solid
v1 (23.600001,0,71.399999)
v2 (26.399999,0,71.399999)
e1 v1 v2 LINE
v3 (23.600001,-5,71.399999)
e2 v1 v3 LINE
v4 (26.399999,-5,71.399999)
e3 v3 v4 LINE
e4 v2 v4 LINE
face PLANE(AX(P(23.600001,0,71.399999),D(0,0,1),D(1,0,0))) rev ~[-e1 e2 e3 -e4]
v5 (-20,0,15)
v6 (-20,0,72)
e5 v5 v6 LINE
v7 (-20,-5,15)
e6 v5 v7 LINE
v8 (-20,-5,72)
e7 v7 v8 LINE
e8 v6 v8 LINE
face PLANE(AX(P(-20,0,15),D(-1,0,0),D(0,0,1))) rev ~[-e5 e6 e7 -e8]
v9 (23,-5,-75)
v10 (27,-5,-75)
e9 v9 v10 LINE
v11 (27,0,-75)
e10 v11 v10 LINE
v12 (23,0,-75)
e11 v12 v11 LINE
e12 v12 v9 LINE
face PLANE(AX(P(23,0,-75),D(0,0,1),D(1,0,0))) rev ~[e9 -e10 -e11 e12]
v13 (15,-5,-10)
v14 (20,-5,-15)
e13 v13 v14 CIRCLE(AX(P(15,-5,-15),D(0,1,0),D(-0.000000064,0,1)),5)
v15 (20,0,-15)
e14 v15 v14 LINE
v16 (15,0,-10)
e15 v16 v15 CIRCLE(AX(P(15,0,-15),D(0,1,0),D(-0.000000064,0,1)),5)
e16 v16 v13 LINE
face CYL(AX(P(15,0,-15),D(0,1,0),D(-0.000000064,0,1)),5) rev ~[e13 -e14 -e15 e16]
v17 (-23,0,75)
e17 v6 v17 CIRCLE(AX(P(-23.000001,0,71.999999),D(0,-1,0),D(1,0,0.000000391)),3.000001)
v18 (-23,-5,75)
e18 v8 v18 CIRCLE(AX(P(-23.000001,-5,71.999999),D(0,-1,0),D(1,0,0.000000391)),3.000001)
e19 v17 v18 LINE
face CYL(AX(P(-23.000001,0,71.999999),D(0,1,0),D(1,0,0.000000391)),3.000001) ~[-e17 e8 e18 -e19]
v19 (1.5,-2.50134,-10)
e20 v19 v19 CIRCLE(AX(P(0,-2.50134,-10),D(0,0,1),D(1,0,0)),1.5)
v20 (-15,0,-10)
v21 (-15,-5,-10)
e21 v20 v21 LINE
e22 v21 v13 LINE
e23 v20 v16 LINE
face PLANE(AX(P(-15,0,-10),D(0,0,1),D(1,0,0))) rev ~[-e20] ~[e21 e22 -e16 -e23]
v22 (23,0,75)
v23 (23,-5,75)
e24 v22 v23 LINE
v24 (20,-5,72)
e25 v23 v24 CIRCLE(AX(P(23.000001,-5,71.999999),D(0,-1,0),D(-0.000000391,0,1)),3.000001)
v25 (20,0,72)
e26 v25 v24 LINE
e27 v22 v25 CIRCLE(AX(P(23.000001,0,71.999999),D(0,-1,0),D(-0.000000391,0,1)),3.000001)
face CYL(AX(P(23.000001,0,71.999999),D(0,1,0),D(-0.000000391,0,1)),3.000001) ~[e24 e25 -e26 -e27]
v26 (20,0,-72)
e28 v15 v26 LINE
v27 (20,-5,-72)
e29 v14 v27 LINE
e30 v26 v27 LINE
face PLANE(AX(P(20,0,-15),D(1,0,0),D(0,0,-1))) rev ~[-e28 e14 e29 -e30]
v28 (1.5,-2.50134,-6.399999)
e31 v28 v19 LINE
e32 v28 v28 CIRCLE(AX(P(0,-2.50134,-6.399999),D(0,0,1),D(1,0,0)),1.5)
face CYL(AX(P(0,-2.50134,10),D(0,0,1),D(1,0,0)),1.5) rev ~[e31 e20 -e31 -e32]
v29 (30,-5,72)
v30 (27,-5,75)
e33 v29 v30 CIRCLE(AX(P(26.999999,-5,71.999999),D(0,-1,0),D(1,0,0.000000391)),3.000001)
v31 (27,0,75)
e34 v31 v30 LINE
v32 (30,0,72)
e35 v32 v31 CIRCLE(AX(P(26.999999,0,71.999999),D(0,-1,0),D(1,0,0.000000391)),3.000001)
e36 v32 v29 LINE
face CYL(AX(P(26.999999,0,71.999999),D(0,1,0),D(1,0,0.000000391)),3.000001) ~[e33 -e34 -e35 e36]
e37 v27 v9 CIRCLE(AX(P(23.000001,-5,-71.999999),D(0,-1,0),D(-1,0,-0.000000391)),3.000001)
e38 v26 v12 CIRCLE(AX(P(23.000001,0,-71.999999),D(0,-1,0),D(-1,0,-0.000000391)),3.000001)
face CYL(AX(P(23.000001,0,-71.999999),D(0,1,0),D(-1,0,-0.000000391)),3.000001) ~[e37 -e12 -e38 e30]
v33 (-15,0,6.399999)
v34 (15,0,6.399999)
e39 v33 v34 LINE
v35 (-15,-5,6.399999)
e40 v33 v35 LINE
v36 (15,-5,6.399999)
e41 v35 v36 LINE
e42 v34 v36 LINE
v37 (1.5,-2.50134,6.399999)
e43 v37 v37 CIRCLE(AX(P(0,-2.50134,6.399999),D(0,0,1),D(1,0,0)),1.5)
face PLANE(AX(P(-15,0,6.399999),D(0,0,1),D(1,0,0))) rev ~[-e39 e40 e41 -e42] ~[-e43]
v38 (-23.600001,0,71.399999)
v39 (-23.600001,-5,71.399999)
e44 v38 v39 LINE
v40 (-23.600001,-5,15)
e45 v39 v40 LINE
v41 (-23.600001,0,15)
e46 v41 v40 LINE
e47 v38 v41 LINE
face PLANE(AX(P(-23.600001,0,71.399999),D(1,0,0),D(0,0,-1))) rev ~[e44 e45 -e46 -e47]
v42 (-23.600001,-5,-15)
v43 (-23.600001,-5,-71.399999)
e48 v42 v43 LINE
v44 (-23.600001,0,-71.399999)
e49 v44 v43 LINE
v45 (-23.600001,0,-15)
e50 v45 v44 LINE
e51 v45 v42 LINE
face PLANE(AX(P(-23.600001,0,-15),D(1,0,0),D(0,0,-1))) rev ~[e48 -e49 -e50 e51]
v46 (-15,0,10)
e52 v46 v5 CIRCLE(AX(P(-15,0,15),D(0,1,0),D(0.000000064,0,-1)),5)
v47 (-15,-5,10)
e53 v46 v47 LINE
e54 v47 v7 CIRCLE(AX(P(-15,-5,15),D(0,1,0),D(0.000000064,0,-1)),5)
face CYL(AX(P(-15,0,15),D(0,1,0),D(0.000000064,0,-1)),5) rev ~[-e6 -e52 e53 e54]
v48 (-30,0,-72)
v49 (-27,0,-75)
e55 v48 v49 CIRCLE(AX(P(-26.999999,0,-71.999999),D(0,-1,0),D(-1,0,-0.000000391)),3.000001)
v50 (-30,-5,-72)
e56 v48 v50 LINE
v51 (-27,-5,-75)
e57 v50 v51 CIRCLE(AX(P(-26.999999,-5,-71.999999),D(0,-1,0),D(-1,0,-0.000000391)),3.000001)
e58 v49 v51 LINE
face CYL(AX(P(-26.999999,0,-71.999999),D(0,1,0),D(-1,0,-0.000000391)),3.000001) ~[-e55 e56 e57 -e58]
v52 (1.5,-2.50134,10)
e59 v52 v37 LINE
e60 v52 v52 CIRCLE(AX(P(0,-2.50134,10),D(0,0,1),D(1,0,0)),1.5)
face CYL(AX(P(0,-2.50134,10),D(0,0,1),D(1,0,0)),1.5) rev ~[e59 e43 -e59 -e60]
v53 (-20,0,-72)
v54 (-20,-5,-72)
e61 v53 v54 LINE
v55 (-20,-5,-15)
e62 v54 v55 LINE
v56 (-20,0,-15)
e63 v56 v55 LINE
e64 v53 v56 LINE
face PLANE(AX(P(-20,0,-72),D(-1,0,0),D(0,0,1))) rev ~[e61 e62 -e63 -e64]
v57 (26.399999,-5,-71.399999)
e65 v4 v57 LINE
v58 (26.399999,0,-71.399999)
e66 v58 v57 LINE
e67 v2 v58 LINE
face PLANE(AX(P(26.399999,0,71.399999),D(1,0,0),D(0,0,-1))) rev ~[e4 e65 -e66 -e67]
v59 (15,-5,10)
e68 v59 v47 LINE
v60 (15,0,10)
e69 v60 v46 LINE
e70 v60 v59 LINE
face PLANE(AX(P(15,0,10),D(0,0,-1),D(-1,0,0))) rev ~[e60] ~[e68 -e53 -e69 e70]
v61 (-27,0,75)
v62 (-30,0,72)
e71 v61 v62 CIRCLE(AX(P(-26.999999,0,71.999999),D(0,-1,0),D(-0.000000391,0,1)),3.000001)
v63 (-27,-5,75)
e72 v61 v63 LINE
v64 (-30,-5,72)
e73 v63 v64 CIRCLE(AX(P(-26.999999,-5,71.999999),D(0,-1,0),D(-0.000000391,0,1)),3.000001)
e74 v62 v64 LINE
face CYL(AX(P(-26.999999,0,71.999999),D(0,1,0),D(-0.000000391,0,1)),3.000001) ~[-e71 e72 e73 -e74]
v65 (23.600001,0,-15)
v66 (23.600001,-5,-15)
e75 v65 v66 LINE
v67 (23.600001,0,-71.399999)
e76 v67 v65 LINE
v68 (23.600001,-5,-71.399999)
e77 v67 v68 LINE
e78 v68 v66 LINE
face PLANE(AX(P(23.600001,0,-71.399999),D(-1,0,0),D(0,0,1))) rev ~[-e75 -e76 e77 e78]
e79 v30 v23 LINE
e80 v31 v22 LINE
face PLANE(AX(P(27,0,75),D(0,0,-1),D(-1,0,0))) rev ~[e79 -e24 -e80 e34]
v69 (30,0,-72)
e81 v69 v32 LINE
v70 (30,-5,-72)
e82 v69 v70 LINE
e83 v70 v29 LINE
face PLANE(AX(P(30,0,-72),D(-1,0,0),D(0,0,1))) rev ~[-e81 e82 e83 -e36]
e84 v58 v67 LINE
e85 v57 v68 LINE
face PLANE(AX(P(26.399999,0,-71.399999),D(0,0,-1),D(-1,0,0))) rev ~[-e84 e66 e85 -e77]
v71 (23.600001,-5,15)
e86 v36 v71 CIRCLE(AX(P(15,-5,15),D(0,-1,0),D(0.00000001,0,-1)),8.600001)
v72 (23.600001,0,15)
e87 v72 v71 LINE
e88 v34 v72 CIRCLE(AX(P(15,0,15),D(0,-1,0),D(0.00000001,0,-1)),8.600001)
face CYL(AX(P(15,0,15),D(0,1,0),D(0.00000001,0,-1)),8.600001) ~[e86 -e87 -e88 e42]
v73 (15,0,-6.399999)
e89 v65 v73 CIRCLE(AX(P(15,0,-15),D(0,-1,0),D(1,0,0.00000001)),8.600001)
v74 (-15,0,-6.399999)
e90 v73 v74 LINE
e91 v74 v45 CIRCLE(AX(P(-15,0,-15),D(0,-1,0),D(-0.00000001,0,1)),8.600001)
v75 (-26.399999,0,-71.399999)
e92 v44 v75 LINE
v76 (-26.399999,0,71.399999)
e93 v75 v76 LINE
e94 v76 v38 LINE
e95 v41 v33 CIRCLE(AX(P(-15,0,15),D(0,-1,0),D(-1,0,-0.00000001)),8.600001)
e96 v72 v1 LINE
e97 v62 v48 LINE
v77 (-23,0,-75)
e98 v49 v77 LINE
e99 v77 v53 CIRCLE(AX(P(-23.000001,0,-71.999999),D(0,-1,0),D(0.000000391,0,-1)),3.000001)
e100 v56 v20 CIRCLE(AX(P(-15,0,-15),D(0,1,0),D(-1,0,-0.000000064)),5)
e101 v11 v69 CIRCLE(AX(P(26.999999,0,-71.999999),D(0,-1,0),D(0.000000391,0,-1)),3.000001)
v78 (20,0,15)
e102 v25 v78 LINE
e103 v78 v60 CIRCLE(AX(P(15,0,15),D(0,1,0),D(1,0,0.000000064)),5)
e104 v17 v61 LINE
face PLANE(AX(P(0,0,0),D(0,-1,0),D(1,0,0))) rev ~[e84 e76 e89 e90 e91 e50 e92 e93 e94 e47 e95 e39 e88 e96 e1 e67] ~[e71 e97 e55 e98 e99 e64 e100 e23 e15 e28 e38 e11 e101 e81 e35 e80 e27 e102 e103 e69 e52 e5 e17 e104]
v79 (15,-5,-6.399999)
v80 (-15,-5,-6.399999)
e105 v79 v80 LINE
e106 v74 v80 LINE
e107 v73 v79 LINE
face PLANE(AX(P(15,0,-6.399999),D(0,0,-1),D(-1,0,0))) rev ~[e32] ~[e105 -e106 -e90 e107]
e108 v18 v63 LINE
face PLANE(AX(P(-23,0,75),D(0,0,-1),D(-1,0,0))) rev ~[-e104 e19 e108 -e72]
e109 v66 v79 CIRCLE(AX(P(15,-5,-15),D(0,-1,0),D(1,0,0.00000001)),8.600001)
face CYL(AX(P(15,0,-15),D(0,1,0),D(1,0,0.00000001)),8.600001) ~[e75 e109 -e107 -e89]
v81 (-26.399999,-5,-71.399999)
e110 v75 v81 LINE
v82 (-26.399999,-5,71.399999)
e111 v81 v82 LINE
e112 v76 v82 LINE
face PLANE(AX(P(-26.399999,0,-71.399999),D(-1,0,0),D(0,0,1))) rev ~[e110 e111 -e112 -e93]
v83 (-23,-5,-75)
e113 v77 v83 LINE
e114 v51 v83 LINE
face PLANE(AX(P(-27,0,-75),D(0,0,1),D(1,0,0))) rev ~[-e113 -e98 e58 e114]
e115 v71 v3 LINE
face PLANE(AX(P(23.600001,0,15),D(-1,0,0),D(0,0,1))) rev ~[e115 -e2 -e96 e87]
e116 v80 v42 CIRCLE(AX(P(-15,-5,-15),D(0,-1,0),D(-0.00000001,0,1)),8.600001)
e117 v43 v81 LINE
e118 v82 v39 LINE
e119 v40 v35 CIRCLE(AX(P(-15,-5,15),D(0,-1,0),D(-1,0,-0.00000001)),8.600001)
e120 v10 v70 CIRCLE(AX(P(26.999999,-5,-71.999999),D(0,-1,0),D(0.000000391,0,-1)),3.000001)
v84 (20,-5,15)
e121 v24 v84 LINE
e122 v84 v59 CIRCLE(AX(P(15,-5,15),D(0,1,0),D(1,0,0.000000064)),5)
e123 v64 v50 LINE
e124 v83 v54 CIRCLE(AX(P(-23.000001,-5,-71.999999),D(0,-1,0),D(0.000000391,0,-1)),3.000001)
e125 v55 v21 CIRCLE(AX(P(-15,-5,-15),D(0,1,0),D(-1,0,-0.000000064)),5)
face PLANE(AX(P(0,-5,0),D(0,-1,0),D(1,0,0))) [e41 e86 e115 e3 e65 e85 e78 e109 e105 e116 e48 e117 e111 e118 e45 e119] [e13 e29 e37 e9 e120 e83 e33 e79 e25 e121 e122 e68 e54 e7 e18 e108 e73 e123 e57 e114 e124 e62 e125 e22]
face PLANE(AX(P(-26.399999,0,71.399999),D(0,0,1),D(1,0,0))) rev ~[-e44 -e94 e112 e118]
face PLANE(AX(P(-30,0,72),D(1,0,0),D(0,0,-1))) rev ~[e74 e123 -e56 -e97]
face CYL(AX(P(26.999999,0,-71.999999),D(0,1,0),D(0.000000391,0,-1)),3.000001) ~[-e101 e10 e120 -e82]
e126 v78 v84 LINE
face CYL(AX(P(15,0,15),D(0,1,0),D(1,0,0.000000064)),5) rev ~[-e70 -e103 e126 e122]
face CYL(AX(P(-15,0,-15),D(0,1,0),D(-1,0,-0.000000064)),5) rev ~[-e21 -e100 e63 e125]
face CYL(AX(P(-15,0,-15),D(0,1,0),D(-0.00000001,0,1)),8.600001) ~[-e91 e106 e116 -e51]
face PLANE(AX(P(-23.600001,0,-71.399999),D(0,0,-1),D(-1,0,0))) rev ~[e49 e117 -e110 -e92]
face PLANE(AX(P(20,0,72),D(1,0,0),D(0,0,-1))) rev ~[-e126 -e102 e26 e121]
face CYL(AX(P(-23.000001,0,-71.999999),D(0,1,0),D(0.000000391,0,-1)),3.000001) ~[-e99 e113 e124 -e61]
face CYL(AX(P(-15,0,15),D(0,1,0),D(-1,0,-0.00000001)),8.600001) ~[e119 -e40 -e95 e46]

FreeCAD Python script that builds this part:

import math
import FreeCAD as App
import Part
import Sketcher
from FreeCAD import Vector
Q = App.Units.Quantity

doc = App.newDocument("Part")
body = doc.addObject("PartDesign::Body", "Body")

# Sketch on XZ plane
sketch1 = body.newObject("Sketcher::SketchObject", "Sketch")
sketch1.AttachmentSupport = (doc.getObject("XZ_Plane"), [""])
sketch1.MapMode = "FlatFace"
sketch1.addGeometry(Part.LineSegment(Vector(-23, 75, 0), Vector(-27, 75, 0)), False)
sketch1.addGeometry(Part.ArcOfCircle(Part.Circle(Vector(-26.999999, 71.999999, 0), Vector(0, 0, 1), 3.000001), math.radians(90.000022), math.radians(179.999978)), False)
sketch1.addGeometry(Part.LineSegment(Vector(-30, 72, 0), Vector(-30, -72, 0)), False)
sketch1.addGeometry(Part.ArcOfCircle(Part.Circle(Vector(-26.999999, -71.999999, 0), Vector(0, 0, 1), 3.000001), math.radians(-179.999978), math.radians(-90.000022)), False)
sketch1.addGeometry(Part.LineSegment(Vector(-27, -75, 0), Vector(-23, -75, 0)), False)
sketch1.addGeometry(Part.ArcOfCircle(Part.Circle(Vector(-23.000001, -71.999999, 0), Vector(0, 0, 1), 3.000001), math.radians(-89.999978), math.radians(-0.000022)), False)
sketch1.addGeometry(Part.LineSegment(Vector(-20, -72, 0), Vector(-20, -15, 0)), False)
sketch1.addGeometry(Part.ArcOfCircle(Part.Circle(Vector(-15, -15, 0), Vector(0, 0, 1), 5), math.radians(89.999996), math.radians(180.000004)), False)
sketch1.addGeometry(Part.LineSegment(Vector(-15, -10, 0), Vector(15, -10, 0)), False)
sketch1.addGeometry(Part.ArcOfCircle(Part.Circle(Vector(15, -15, 0), Vector(0, 0, 1), 5), math.radians(-0.000004), math.radians(90.000004)), False)
sketch1.addGeometry(Part.LineSegment(Vector(20, -15, 0), Vector(20, -72, 0)), False)
sketch1.addGeometry(Part.ArcOfCircle(Part.Circle(Vector(23.000001, -71.999999, 0), Vector(0, 0, 1), 3.000001), math.radians(-179.999978), math.radians(-90.000022)), False)
sketch1.addGeometry(Part.LineSegment(Vector(23, -75, 0), Vector(27, -75, 0)), False)
sketch1.addGeometry(Part.ArcOfCircle(Part.Circle(Vector(26.999999, -71.999999, 0), Vector(0, 0, 1), 3.000001), math.radians(-89.999978), math.radians(-0.000022)), False)
sketch1.addGeometry(Part.LineSegment(Vector(30, -72, 0), Vector(30, 72, 0)), False)
sketch1.addGeometry(Part.ArcOfCircle(Part.Circle(Vector(26.999999, 71.999999, 0), Vector(0, 0, 1), 3.000001), math.radians(0.000022), math.radians(89.999978)), False)
sketch1.addGeometry(Part.LineSegment(Vector(27, 75, 0), Vector(23, 75, 0)), False)
sketch1.addGeometry(Part.ArcOfCircle(Part.Circle(Vector(23.000001, 71.999999, 0), Vector(0, 0, 1), 3.000001), math.radians(90.000022), math.radians(179.999978)), False)
sketch1.addGeometry(Part.LineSegment(Vector(20, 72, 0), Vector(20, 15, 0)), False)
sketch1.addGeometry(Part.ArcOfCircle(Part.Circle(Vector(15, 15, 0), Vector(0, 0, 1), 5), math.radians(-90.000004), math.radians(0.000004)), False)
sketch1.addGeometry(Part.LineSegment(Vector(15, 10, 0), Vector(-15, 10, 0)), False)
sketch1.addGeometry(Part.ArcOfCircle(Part.Circle(Vector(-15, 15, 0), Vector(0, 0, 1), 5), math.radians(179.999996), math.radians(270.000004)), False)
sketch1.addGeometry(Part.LineSegment(Vector(-20, 15, 0), Vector(-20, 72, 0)), False)
sketch1.addGeometry(Part.ArcOfCircle(Part.Circle(Vector(-23.000001, 71.999999, 0), Vector(0, 0, 1), 3.000001), math.radians(0.000022), math.radians(89.999978)), False)
sketch1.addGeometry(Part.LineSegment(Vector(-23.600001, -15, 0), Vector(-23.600001, -71.399999, 0)), False)
sketch1.addGeometry(Part.LineSegment(Vector(-23.600001, -71.399999, 0), Vector(-26.399999, -71.399999, 0)), False)
sketch1.addGeometry(Part.LineSegment(Vector(-26.399999, -71.399999, 0), Vector(-26.399999, 71.399999, 0)), False)
sketch1.addGeometry(Part.LineSegment(Vector(-26.399999, 71.399999, 0), Vector(-23.600001, 71.399999, 0)), False)
sketch1.addGeometry(Part.LineSegment(Vector(-23.600001, 71.399999, 0), Vector(-23.600001, 15, 0)), False)
sketch1.addGeometry(Part.ArcOfCircle(Part.Circle(Vector(-15, 15, 0), Vector(0, 0, 1), 8.600001), math.radians(-179.999999), math.radians(-90.000001)), False)
sketch1.addGeometry(Part.LineSegment(Vector(-15, 6.399999, 0), Vector(15, 6.399999, 0)), False)
sketch1.addGeometry(Part.ArcOfCircle(Part.Circle(Vector(15, 15, 0), Vector(0, 0, 1), 8.600001), math.radians(-89.999999), math.radians(-0.000001)), False)
sketch1.addGeometry(Part.LineSegment(Vector(23.600001, 15, 0), Vector(23.600001, 71.399999, 0)), False)
sketch1.addGeometry(Part.LineSegment(Vector(23.600001, 71.399999, 0), Vector(26.399999, 71.399999, 0)), False)
sketch1.addGeometry(Part.LineSegment(Vector(26.399999, 71.399999, 0), Vector(26.399999, -71.399999, 0)), False)
sketch1.addGeometry(Part.LineSegment(Vector(26.399999, -71.399999, 0), Vector(23.600001, -71.399999, 0)), False)
sketch1.addGeometry(Part.LineSegment(Vector(23.600001, -71.399999, 0), Vector(23.600001, -15, 0)), False)
sketch1.addGeometry(Part.ArcOfCircle(Part.Circle(Vector(15, -15, 0), Vector(0, 0, 1), 8.600001), math.radians(0.000001), math.radians(89.999999)), False)
sketch1.addGeometry(Part.LineSegment(Vector(15, -6.399999, 0), Vector(-15, -6.399999, 0)), False)
sketch1.addGeometry(Part.ArcOfCircle(Part.Circle(Vector(-15, -15, 0), Vector(0, 0, 1), 8.600001), math.radians(90.000001), math.radians(179.999999)), False)
sketch1.addConstraint(Sketcher.Constraint("Tangent", 0, 2, 1, 1))
sketch1.addConstraint(Sketcher.Constraint("Tangent", 1, 2, 2, 1))
sketch1.addConstraint(Sketcher.Constraint("Tangent", 2, 2, 3, 1))
sketch1.addConstraint(Sketcher.Constraint("Tangent", 3, 2, 4, 1))
sketch1.addConstraint(Sketcher.Constraint("Tangent", 4, 2, 5, 1))
sketch1.addConstraint(Sketcher.Constraint("Tangent", 5, 2, 6, 1))
sketch1.addConstraint(Sketcher.Constraint("Tangent", 6, 2, 7, 2))
sketch1.addConstraint(Sketcher.Constraint("Tangent", 7, 1, 8, 1))
sketch1.addConstraint(Sketcher.Constraint("Tangent", 8, 2, 9, 2))
sketch1.addConstraint(Sketcher.Constraint("Tangent", 9, 1, 10, 1))
sketch1.addConstraint(Sketcher.Constraint("Tangent", 10, 2, 11, 1))
sketch1.addConstraint(Sketcher.Constraint("Tangent", 11, 2, 12, 1))
sketch1.addConstraint(Sketcher.Constraint("Tangent", 12, 2, 13, 1))
sketch1.addConstraint(Sketcher.Constraint("Tangent", 13, 2, 14, 1))
sketch1.addConstraint(Sketcher.Constraint("Tangent", 14, 2, 15, 1))
sketch1.addConstraint(Sketcher.Constraint("Tangent", 15, 2, 16, 1))
sketch1.addConstraint(Sketcher.Constraint("Tangent", 16, 2, 17, 1))
sketch1.addConstraint(Sketcher.Constraint("Tangent", 17, 2, 18, 1))
sketch1.addConstraint(Sketcher.Constraint("Tangent", 18, 2, 19, 2))
sketch1.addConstraint(Sketcher.Constraint("Tangent", 19, 1, 20, 1))
sketch1.addConstraint(Sketcher.Constraint("Tangent", 20, 2, 21, 2))
sketch1.addConstraint(Sketcher.Constraint("Tangent", 21, 1, 22, 1))
sketch1.addConstraint(Sketcher.Constraint("Tangent", 22, 2, 23, 1))
sketch1.addConstraint(Sketcher.Constraint("Tangent", 23, 2, 0, 1))
sketch1.addConstraint(Sketcher.Constraint("Coincident", 24, 2, 25, 1))
sketch1.addConstraint(Sketcher.Constraint("Coincident", 25, 2, 26, 1))
sketch1.addConstraint(Sketcher.Constraint("Coincident", 26, 2, 27, 1))
sketch1.addConstraint(Sketcher.Constraint("Coincident", 27, 2, 28, 1))
sketch1.addConstraint(Sketcher.Constraint("Tangent", 28, 2, 29, 1))
sketch1.addConstraint(Sketcher.Constraint("Tangent", 29, 2, 30, 1))
sketch1.addConstraint(Sketcher.Constraint("Tangent", 30, 2, 31, 1))
sketch1.addConstraint(Sketcher.Constraint("Tangent", 31, 2, 32, 1))
sketch1.addConstraint(Sketcher.Constraint("Coincident", 32, 2, 33, 1))
sketch1.addConstraint(Sketcher.Constraint("Coincident", 33, 2, 34, 1))
sketch1.addConstraint(Sketcher.Constraint("Coincident", 34, 2, 35, 1))
sketch1.addConstraint(Sketcher.Constraint("Coincident", 35, 2, 36, 1))
sketch1.addConstraint(Sketcher.Constraint("Tangent", 36, 2, 37, 1))
sketch1.addConstraint(Sketcher.Constraint("Tangent", 37, 2, 38, 1))
sketch1.addConstraint(Sketcher.Constraint("Tangent", 38, 2, 39, 1))
sketch1.addConstraint(Sketcher.Constraint("Tangent", 39, 2, 24, 1))
sketch1.addConstraint(Sketcher.Constraint("Horizontal", 0))
sketch1.addConstraint(Sketcher.Constraint("Vertical", 2))
sketch1.addConstraint(Sketcher.Constraint("Horizontal", 4))
sketch1.addConstraint(Sketcher.Constraint("Vertical", 6))
sketch1.addConstraint(Sketcher.Constraint("Horizontal", 8))
sketch1.addConstraint(Sketcher.Constraint("Vertical", 10))
sketch1.addConstraint(Sketcher.Constraint("Horizontal", 12))
sketch1.addConstraint(Sketcher.Constraint("Vertical", 14))
sketch1.addConstraint(Sketcher.Constraint("Horizontal", 16))
sketch1.addConstraint(Sketcher.Constraint("Vertical", 18))
sketch1.addConstraint(Sketcher.Constraint("Horizontal", 20))
sketch1.addConstraint(Sketcher.Constraint("Vertical", 22))
sketch1.addConstraint(Sketcher.Constraint("Vertical", 24))
sketch1.addConstraint(Sketcher.Constraint("Horizontal", 25))
sketch1.addConstraint(Sketcher.Constraint("Vertical", 26))
sketch1.addConstraint(Sketcher.Constraint("Horizontal", 27))
sketch1.addConstraint(Sketcher.Constraint("Vertical", 28))
sketch1.addConstraint(Sketcher.Constraint("Horizontal", 30))
sketch1.addConstraint(Sketcher.Constraint("Vertical", 32))
sketch1.addConstraint(Sketcher.Constraint("Horizontal", 33))
sketch1.addConstraint(Sketcher.Constraint("Vertical", 34))
sketch1.addConstraint(Sketcher.Constraint("Horizontal", 35))
sketch1.addConstraint(Sketcher.Constraint("Vertical", 36))
sketch1.addConstraint(Sketcher.Constraint("Horizontal", 38))
sketch1.addConstraint(Sketcher.Constraint("Coincident", 29, 3, 21, 3))
sketch1.addConstraint(Sketcher.Constraint("Coincident", 31, 3, 19, 3))
sketch1.addConstraint(Sketcher.Constraint("Coincident", 37, 3, 9, 3))
sketch1.addConstraint(Sketcher.Constraint("Coincident", 39, 3, 7, 3))
sketch1.addConstraint(Sketcher.Constraint("Equal", 1, 3))
sketch1.addConstraint(Sketcher.Constraint("Equal", 3, 5))
sketch1.addConstraint(Sketcher.Constraint("Equal", 7, 9))
sketch1.addConstraint(Sketcher.Constraint("Equal", 5, 11))
sketch1.addConstraint(Sketcher.Constraint("Equal", 11, 13))
sketch1.addConstraint(Sketcher.Constraint("Equal", 13, 15))
sketch1.addConstraint(Sketcher.Constraint("Equal", 15, 17))
sketch1.addConstraint(Sketcher.Constraint("Equal", 9, 19))
sketch1.addConstraint(Sketcher.Constraint("Equal", 19, 21))
sketch1.addConstraint(Sketcher.Constraint("Equal", 17, 23))
sketch1.addConstraint(Sketcher.Constraint("Equal", 31, 37))
sketch1.addConstraint(Sketcher.Constraint("Symmetric", 1, 3, 13, 3, -1, 1))
sketch1.addConstraint(Sketcher.Constraint("Symmetric", 5, 3, 17, 3, -1, 1))
sketch1.addConstraint(Sketcher.Constraint("Symmetric", 9, 3, 21, 3, -1, 1))
sketch1.addConstraint(Sketcher.Constraint("Symmetric", 25, 2, 33, 2, -1, 1))
sketch1.addConstraint(Sketcher.Constraint("Symmetric", 5, 3, 11, 3, -2))
sketch1.addConstraint(Sketcher.Constraint("Horizontal", 27, 2, 32, 2))
sketch1.addConstraint(Sketcher.Constraint("Horizontal", 25, 2, 34, 2))
sketch1.addConstraint(Sketcher.Constraint("Radius", 1, Q("3.000001 mm")))
sketch1.addConstraint(Sketcher.Constraint("Radius", 7, Q("5 mm")))
sketch1.addConstraint(Sketcher.Constraint("Radius", 29, Q("8.600001 mm")))
sketch1.addConstraint(Sketcher.Constraint("DistanceX", 0, 2, 0, 1, Q("4 mm")))
sketch1.addConstraint(Sketcher.Constraint("DistanceX", 8, 1, 8, 2, Q("30 mm")))
sketch1.addConstraint(Sketcher.Constraint("DistanceY", 2, 2, 2, 1, Q("144 mm")))
sketch1.addConstraint(Sketcher.Constraint("DistanceY", 6, 1, 6, 2, Q("57 mm")))
sketch1.addConstraint(Sketcher.Constraint("DistanceX", 25, 2, 25, 1, Q("2.799998 mm")))
sketch1.addConstraint(Sketcher.Constraint("DistanceY", 24, 2, 24, 1, Q("56.399999 mm")))
pad1 = body.newObject("PartDesign::Pad", "Pad")
pad1.Profile = sketch1
pad1.Length = 5

# Sketch on XY plane
sketch2 = body.newObject("Sketcher::SketchObject", "Sketch001")
sketch2.AttachmentSupport = (doc.getObject("XY_Plane"), [""])
sketch2.MapMode = "FlatFace"
sketch2.AttachmentOffset = App.Placement(Vector(0, 0, 10), App.Rotation())
sketch2.addGeometry(Part.Circle(Vector(0, -2.50134, 0), Vector(0, 0, 1), 1.5), False)
sketch2.addConstraint(Sketcher.Constraint("PointOnObject", 0, 3, -2))
sketch2.addConstraint(Sketcher.Constraint("Diameter", 0, Q("3 mm")))
sketch2.addConstraint(Sketcher.Constraint("DistanceY", 0, 3, -1, 1, Q("2.50134 mm")))
pocket1 = body.newObject("PartDesign::Pocket", "Pocket")
pocket1.Profile = sketch2
pocket1.Length = 25

doc.recompute()
